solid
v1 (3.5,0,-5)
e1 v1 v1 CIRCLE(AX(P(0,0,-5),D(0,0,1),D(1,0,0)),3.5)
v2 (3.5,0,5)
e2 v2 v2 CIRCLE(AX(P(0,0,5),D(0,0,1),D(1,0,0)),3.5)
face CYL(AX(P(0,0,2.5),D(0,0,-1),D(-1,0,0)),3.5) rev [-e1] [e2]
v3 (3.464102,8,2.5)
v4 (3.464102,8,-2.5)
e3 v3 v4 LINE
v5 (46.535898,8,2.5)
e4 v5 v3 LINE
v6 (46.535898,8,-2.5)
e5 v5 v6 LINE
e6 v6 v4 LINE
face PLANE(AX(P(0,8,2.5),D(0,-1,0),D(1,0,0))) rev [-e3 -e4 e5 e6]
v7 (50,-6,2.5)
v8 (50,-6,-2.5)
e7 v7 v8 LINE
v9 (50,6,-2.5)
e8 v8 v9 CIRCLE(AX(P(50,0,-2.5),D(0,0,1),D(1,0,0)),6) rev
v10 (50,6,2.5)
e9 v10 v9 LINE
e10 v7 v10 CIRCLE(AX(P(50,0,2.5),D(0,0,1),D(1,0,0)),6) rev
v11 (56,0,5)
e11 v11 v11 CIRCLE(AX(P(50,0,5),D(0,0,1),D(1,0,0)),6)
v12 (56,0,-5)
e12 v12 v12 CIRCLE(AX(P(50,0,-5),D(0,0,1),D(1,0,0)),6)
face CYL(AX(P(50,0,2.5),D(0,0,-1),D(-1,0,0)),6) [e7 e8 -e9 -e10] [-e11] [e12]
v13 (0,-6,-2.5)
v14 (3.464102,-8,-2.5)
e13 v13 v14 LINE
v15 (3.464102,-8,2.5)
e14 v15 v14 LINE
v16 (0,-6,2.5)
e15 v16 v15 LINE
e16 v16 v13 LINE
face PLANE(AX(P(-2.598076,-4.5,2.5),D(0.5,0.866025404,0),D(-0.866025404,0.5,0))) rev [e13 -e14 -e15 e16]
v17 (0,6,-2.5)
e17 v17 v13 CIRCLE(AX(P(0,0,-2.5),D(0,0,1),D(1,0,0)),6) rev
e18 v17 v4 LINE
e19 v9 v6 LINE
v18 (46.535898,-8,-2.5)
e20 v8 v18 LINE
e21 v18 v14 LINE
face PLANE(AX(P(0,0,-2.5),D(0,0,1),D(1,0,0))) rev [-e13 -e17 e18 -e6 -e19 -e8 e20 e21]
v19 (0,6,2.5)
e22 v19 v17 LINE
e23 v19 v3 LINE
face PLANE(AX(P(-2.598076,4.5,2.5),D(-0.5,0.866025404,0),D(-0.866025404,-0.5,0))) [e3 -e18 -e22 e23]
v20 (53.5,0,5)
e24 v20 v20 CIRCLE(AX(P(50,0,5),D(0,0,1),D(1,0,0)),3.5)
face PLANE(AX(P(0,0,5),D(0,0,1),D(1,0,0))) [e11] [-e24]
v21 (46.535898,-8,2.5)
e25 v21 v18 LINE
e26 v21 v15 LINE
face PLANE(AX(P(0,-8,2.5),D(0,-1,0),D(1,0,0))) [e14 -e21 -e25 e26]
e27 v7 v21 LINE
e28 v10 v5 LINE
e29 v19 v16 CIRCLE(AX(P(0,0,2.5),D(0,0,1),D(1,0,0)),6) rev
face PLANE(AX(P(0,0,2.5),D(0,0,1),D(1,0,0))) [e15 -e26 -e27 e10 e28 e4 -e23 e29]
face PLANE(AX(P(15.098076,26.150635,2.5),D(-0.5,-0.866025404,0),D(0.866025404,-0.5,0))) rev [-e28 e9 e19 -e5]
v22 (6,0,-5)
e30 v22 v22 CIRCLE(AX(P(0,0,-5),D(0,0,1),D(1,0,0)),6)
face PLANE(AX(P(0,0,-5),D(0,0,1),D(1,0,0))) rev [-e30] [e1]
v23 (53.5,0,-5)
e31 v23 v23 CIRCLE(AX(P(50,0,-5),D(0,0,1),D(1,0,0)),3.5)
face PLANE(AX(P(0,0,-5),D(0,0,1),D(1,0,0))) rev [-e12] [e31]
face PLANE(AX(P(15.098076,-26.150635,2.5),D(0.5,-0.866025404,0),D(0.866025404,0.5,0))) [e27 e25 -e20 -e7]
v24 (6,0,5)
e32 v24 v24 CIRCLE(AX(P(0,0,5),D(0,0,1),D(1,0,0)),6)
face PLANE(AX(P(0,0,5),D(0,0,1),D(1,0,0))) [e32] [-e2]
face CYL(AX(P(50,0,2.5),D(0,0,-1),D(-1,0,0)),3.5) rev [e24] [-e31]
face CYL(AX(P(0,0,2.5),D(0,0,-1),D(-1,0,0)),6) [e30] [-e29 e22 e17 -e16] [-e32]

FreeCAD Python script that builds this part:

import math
import FreeCAD as App
import Part
import Sketcher

V = App.Vector
Q = App.Units.Quantity

doc = App.newDocument("Part")
body = doc.addObject("PartDesign::Body", "Body")

sketch1 = body.newObject("Sketcher::SketchObject", "Sketch")
sketch1.AttachmentSupport = (doc.getObject("XY_Plane"), [""])
sketch1.MapMode = "FlatFace"
sketch1.addGeometry([
    Part.LineSegment(V(3.5, 8, 0), V(0, 6, 0)),
    Part.ArcOfCircle(Part.Circle(V(0, 0, 0), V(0, 0, 1), 6), math.radians(90), math.radians(270)),
    Part.LineSegment(V(0, -6, 0), V(3.5, -8, 0)),
    Part.LineSegment(V(3.5, -8, 0), V(46.5, -8, 0)),
    Part.LineSegment(V(46.5, -8, 0), V(50, -6, 0)),
    Part.ArcOfCircle(Part.Circle(V(50, 0, 0), V(0, 0, 1), 6), math.radians(-90), math.radians(90)),
    Part.LineSegment(V(50, 6, 0), V(46.5, 8, 0)),
    Part.LineSegment(V(46.5, 8, 0), V(3.5, 8, 0)),
    Part.Circle(V(0, 0, 0), V(0, 0, 1), 3.5),
    Part.Circle(V(50, 0, 0), V(0, 0, 1), 3.5),
], False)
sketch1.addConstraint([
    Sketcher.Constraint("Coincident", 0, 2, 1, 1),
    Sketcher.Constraint("Coincident", 1, 2, 2, 1),
    Sketcher.Constraint("Coincident", 2, 2, 3, 1),
    Sketcher.Constraint("Coincident", 3, 2, 4, 1),
    Sketcher.Constraint("Coincident", 4, 2, 5, 1),
    Sketcher.Constraint("Coincident", 5, 2, 6, 1),
    Sketcher.Constraint("Coincident", 6, 2, 7, 1),
    Sketcher.Constraint("Coincident", 7, 2, 0, 1),
    Sketcher.Constraint("Horizontal", 3),
    Sketcher.Constraint("Horizontal", 7),
    Sketcher.Constraint("Coincident", 1, 3, -1, 1),
    Sketcher.Constraint("Coincident", 8, 3, -1, 1),
    Sketcher.Constraint("Coincident", 9, 3, 5, 3),
    Sketcher.Constraint("Equal", 1, 5),
    Sketcher.Constraint("Equal", 8, 9),
    Sketcher.Constraint("Symmetric", 4, 2, 5, 2, -1),
    Sketcher.Constraint("Symmetric", 3, 2, 6, 2, -1),
    Sketcher.Constraint("PointOnObject", 0, 2, -2),
    Sketcher.Constraint("PointOnObject", 1, 2, -2),
    Sketcher.Constraint("Parallel", 0, 4),
    Sketcher.Constraint("Parallel", 2, 6),
    Sketcher.Constraint("Vertical", 9, 3, 4, 2),
    Sketcher.Constraint("Diameter", 8, Q("7 mm")),
    Sketcher.Constraint("Radius", 1, Q("6 mm")),
    Sketcher.Constraint("Angle", 0, Q("-150 deg")),
    Sketcher.Constraint("Distance", 0, Q("4 mm")),
    Sketcher.Constraint("DistanceX", -1, 1, 5, 3, Q("50 mm")),
])
pad1 = body.newObject("PartDesign::Pad", "Pad")
pad1.Profile = sketch1
pad1.Length = 5
pad1.Midplane = True

sketch2 = body.newObject("Sketcher::SketchObject", "Sketch001")
sketch2.AttachmentSupport = (doc.getObject("XY_Plane"), [""])
sketch2.MapMode = "FlatFace"
sketch2.addGeometry([
    Part.Circle(V(0, 0, 0), V(0, 0, 1), 6),
    Part.Circle(V(0, 0, 0), V(0, 0, 1), 3.5),
    Part.Circle(V(50, 0, 0), V(0, 0, 1), 6),
    Part.Circle(V(50, 0, 0), V(0, 0, 1), 3.5),
], False)
sketch2.addConstraint([
    Sketcher.Constraint("Coincident", 0, 3, -1, 1),
    Sketcher.Constraint("Coincident", 1, 3, -1, 1),
    Sketcher.Constraint("Coincident", 3, 3, 2, 3),
    Sketcher.Constraint("Equal", 0, 2),
    Sketcher.Constraint("Equal", 1, 3),
    Sketcher.Constraint("PointOnObject", 2, 3, -1),
    Sketcher.Constraint("Diameter", 0, Q("12 mm")),
    Sketcher.Constraint("Diameter", 1, Q("7 mm")),
    Sketcher.Constraint("DistanceX", -1, 1, 2, 3, Q("50 mm")),
])
pad2 = body.newObject("PartDesign::Pad", "Pad001")
pad2.Profile = sketch2
pad2.Length = 10
pad2.Midplane = True

doc.recompute()
